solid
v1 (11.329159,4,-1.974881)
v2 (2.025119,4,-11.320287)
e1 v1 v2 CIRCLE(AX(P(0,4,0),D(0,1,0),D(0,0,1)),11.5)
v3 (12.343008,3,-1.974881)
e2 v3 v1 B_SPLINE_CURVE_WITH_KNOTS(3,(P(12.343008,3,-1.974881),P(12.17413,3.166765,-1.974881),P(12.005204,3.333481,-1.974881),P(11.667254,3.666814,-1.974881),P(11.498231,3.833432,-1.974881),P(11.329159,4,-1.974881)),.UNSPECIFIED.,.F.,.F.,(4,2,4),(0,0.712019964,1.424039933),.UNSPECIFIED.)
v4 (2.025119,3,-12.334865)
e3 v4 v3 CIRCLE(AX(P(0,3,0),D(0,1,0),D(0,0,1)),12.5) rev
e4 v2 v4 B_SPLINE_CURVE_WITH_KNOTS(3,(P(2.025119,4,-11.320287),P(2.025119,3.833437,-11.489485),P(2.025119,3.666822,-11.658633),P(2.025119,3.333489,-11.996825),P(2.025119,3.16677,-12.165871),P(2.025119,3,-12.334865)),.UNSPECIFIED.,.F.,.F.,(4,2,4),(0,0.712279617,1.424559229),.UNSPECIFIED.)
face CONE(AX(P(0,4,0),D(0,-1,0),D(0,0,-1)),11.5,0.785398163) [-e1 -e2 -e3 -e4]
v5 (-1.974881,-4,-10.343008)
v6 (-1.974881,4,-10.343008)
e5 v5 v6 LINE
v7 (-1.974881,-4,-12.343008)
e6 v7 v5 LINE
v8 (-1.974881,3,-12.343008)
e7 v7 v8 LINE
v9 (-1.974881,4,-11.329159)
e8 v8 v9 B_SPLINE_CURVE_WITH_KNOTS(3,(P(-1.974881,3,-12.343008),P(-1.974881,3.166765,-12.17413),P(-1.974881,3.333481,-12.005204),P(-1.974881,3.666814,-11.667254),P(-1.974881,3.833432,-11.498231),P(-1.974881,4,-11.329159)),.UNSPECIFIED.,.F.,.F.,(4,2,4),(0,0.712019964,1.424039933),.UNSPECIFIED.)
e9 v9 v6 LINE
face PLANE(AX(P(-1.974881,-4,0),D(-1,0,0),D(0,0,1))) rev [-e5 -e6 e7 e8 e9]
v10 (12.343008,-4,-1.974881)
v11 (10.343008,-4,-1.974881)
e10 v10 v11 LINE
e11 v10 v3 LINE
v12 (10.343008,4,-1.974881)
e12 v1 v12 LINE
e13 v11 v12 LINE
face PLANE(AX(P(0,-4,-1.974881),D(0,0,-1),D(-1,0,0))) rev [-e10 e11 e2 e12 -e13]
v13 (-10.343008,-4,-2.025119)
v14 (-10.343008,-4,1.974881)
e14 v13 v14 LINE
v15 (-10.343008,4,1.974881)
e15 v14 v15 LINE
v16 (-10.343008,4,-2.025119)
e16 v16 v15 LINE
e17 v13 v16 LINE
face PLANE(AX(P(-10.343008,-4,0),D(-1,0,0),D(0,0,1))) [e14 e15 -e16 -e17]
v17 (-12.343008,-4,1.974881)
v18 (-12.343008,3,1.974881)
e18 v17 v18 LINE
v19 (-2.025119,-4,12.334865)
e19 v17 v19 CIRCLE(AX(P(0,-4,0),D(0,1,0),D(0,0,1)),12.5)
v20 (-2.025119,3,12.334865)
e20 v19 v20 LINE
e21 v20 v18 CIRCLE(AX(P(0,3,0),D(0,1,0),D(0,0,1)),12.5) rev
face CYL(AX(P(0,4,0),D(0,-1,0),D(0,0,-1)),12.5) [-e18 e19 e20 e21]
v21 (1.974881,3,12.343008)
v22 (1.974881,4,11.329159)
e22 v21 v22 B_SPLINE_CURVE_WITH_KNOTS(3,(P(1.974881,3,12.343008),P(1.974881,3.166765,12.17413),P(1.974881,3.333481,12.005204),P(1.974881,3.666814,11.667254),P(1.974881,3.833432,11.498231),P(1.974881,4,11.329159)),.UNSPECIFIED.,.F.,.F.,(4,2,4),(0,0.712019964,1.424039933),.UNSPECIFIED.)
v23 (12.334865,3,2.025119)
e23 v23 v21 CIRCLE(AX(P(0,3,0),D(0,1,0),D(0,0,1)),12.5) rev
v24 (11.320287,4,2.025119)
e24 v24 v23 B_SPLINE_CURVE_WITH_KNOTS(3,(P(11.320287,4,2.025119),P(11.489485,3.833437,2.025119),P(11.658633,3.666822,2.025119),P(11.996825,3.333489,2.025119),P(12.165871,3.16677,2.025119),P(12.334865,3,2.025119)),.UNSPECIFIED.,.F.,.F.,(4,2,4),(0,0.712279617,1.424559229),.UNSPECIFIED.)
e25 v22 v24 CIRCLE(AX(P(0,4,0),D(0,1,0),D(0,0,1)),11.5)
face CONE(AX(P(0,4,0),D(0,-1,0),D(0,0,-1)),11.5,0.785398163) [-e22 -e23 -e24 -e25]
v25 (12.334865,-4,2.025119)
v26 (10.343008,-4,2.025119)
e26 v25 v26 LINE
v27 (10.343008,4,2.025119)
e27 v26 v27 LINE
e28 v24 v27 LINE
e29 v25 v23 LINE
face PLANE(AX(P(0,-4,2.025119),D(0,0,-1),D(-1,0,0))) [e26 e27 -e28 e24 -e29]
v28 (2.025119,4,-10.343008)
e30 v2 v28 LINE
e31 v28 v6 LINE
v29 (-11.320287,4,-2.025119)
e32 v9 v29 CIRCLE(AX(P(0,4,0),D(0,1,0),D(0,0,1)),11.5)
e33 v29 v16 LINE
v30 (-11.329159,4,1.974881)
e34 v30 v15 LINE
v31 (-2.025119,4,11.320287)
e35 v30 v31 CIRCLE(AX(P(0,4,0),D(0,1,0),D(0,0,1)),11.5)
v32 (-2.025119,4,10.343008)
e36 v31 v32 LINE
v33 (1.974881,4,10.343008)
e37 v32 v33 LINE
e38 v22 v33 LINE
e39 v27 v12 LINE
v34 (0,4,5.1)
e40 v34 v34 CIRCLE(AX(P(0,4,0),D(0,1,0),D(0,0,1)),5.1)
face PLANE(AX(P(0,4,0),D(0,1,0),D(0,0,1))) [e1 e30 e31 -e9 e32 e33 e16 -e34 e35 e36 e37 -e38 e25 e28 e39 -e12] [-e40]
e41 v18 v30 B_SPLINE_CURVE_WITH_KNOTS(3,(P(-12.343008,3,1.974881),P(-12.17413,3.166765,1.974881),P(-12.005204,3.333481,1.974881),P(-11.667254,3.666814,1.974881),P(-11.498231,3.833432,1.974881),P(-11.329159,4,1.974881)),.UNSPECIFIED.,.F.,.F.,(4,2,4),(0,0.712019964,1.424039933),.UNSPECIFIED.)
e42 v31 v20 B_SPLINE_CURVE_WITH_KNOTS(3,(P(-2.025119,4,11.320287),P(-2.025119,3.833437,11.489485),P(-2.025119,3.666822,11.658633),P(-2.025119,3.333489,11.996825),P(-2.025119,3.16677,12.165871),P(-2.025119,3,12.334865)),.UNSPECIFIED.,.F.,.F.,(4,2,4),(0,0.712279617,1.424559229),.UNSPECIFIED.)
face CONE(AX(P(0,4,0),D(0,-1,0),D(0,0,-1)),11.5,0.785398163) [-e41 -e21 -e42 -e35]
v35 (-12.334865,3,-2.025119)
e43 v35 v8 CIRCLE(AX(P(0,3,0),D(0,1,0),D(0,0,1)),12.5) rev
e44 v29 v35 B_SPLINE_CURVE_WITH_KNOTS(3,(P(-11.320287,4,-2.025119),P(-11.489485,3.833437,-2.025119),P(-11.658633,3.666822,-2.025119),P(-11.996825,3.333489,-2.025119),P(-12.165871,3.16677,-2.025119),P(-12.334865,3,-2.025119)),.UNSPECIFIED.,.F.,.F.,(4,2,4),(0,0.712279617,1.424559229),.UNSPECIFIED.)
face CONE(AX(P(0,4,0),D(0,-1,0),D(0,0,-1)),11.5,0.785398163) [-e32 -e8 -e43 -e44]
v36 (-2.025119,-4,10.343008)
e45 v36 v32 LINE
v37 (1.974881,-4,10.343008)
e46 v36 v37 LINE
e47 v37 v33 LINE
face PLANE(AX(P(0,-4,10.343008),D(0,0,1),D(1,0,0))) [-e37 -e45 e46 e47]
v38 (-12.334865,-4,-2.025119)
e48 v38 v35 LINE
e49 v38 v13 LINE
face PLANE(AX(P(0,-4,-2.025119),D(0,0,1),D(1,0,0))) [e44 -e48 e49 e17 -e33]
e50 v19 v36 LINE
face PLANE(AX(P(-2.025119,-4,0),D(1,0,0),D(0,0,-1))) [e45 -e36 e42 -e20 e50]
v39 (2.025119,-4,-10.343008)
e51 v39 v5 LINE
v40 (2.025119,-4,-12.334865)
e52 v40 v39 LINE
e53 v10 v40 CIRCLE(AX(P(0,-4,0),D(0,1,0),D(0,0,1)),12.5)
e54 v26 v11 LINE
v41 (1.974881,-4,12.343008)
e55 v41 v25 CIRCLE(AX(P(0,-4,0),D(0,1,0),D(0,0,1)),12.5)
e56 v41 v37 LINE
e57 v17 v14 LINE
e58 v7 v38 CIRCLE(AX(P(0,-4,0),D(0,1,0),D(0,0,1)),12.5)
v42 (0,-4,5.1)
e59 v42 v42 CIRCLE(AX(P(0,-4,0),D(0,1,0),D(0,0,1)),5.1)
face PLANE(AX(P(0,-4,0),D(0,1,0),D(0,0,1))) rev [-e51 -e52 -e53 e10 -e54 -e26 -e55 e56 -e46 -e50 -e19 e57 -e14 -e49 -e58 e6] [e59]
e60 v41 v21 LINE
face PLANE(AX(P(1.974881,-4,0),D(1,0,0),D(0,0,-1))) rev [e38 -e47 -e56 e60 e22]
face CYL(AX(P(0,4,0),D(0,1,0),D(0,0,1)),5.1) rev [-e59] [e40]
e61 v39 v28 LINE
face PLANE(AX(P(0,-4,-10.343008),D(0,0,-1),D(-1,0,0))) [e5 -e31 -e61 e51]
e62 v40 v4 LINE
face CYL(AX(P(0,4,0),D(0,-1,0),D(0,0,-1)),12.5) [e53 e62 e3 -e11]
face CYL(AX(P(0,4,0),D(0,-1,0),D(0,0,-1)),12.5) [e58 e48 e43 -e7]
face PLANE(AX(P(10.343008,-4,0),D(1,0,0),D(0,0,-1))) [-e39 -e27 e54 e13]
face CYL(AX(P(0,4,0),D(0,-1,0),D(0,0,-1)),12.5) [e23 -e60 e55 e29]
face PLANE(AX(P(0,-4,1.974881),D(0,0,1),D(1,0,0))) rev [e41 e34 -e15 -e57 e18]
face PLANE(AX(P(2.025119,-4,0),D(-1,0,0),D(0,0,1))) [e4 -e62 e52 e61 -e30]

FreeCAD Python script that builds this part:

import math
import FreeCAD as App
import Part
import Sketcher
Q = App.Units.Quantity


def edges_at(feature, points):
    """Names of the edges that pass closest to the given points."""
    edges = feature.Shape.Edges
    near = lambda p: min(range(len(edges)), key=lambda i: edges[i].distToShape(Part.Vertex(*p))[0])
    return sorted({f"Edge{near(p) + 1}" for p in points})

doc = App.newDocument("Part")
body = doc.addObject("PartDesign::Body", "Body")

sketch1 = body.newObject("Sketcher::SketchObject", "Sketch")
sketch1.AttachmentSupport = (doc.getObject("XZ_Plane"), [""])
sketch1.MapMode = "FlatFace"
sketch1.addGeometry(Part.Circle(App.Vector(0, 0, 0), App.Vector(0, 0, 1), 12), False)
sketch1.addConstraint([
    Sketcher.Constraint("Coincident", 0, 3, -1, 1),
    Sketcher.Constraint("Diameter", 0, Q("25 mm")),
])
pad1 = body.newObject("PartDesign::Pad", "Pad")
pad1.Profile = sketch1
pad1.Length = 8
pad1.Midplane = True

sketch2 = body.newObject("Sketcher::SketchObject", "Sketch001")
sketch2.AttachmentSupport = (doc.getObject("XZ_Plane"), [""])
sketch2.MapMode = "FlatFace"
sketch2.addGeometry([
    Part.ArcOfCircle(Part.Circle(App.Vector(0, 0, 0), App.Vector(0, 0, 1), 12.5), math.radians(-9.09), math.radians(9.32)),
    Part.LineSegment(App.Vector(12.3, -2, 0), App.Vector(10.3, -2, 0)),
    Part.LineSegment(App.Vector(10.3, -2, 0), App.Vector(10.3, 2, 0)),
    Part.LineSegment(App.Vector(10.3, 2, 0), App.Vector(12.3, 2, 0)),
    Part.ArcOfCircle(Part.Circle(App.Vector(0, 0, 0), App.Vector(0, 0, 1), 12.5), math.radians(80.91), math.radians(99.32)),
    Part.LineSegment(App.Vector(2, 12.3, 0), App.Vector(2, 10.3, 0)),
    Part.LineSegment(App.Vector(2, 10.3, 0), App.Vector(-2, 10.3, 0)),
    Part.LineSegment(App.Vector(-2, 10.3, 0), App.Vector(-2, 12.3, 0)),
    Part.LineSegment(App.Vector(2, -10.3, 0), App.Vector(2, -12.3, 0)),
    Part.ArcOfCircle(Part.Circle(App.Vector(0, 0, 0), App.Vector(0, 0, 1), 12.5), math.radians(-99.09), math.radians(-80.68)),
    Part.LineSegment(App.Vector(-2, -12.3, 0), App.Vector(-2, -10.3, 0)),
    Part.LineSegment(App.Vector(-2, -10.3, 0), App.Vector(2, -10.3, 0)),
    Part.ArcOfCircle(Part.Circle(App.Vector(0, 0, 0), App.Vector(0, 0, 1), 12.5), math.radians(170.91), math.radians(189.32)),
    Part.LineSegment(App.Vector(-12.3, 2, 0), App.Vector(-10.3, 2, 0)),
    Part.LineSegment(App.Vector(-10.3, 2, 0), App.Vector(-10.3, -2, 0)),
    Part.LineSegment(App.Vector(-10.3, -2, 0), App.Vector(-12.3, -2, 0)),
], False)
sketch2.addConstraint([
    Sketcher.Constraint("Coincident", 0, 1, 1, 1),
    Sketcher.Constraint("Coincident", 1, 2, 2, 1),
    Sketcher.Constraint("Coincident", 2, 2, 3, 1),
    Sketcher.Constraint("Coincident", 3, 2, 0, 2),
    Sketcher.Constraint("Coincident", 4, 1, 5, 1),
    Sketcher.Constraint("Coincident", 5, 2, 6, 1),
    Sketcher.Constraint("Coincident", 6, 2, 7, 1),
    Sketcher.Constraint("Coincident", 7, 2, 4, 2),
    Sketcher.Constraint("Coincident", 8, 2, 9, 2),
    Sketcher.Constraint("Coincident", 9, 1, 10, 1),
    Sketcher.Constraint("Coincident", 10, 2, 11, 1),
    Sketcher.Constraint("Coincident", 11, 2, 8, 1),
    Sketcher.Constraint("Coincident", 12, 1, 13, 1),
    Sketcher.Constraint("Coincident", 13, 2, 14, 1),
    Sketcher.Constraint("Coincident", 14, 2, 15, 1),
    Sketcher.Constraint("Coincident", 15, 2, 12, 2),
    Sketcher.Constraint("Horizontal", 1),
    Sketcher.Constraint("Vertical", 2),
    Sketcher.Constraint("Horizontal", 3),
    Sketcher.Constraint("Vertical", 5),
    Sketcher.Constraint("Horizontal", 6),
    Sketcher.Constraint("Vertical", 7),
    Sketcher.Constraint("Vertical", 8),
    Sketcher.Constraint("Vertical", 10),
    Sketcher.Constraint("Horizontal", 11),
    Sketcher.Constraint("Horizontal", 13),
    Sketcher.Constraint("Vertical", 14),
    Sketcher.Constraint("Horizontal", 15),
    Sketcher.Constraint("Coincident", 0, 3, -1, 1),
    Sketcher.Constraint("Coincident", 4, 3, -1, 1),
    Sketcher.Constraint("Coincident", 9, 3, -1, 1),
    Sketcher.Constraint("Coincident", 12, 3, -1, 1),
    Sketcher.Constraint("Equal", 0, 4),
    Sketcher.Constraint("Equal", 4, 9),
    Sketcher.Constraint("Equal", 9, 12),
    Sketcher.Constraint("Symmetric", 5, 2, 10, 2, -1, 1),
    Sketcher.Constraint("Symmetric", 1, 2, 13, 2, -1, 1),
    Sketcher.Constraint("Equal", 6, 11),
    Sketcher.Constraint("Equal", 3, 15),
    Sketcher.Constraint("Equal", 11, 2),
    Sketcher.Constraint("Equal", 13, 5),
    Sketcher.Constraint("Equal", 15, 7),
    Sketcher.Constraint("Radius", 0, Q("12.5 mm")),
    Sketcher.Constraint("DistanceX", 1, 2, 1, 1, Q("2 mm")),
    Sketcher.Constraint("DistanceX", 6, 2, 6, 1, Q("4 mm")),
    Sketcher.Constraint("DistanceX", 3, 1, 3, 2, Q("1.991857 mm")),
])
pocket1 = body.newObject("PartDesign::Pocket", "Pocket")
pocket1.Profile = sketch2
pocket1.Type = "ThroughAll"
pocket1.Midplane = True
doc.recompute()

chamfer = body.newObject("PartDesign::Chamfer", "Chamfer")
chamfer.Base = (pocket1, edges_at(pocket1, [
    (8.857, 4, -8.821),
    (-8.821, 4, -8.857),
    (-8.857, 4, 8.821),
    (8.821, 4, 8.857),
]))
chamfer.Size = 1

sketch3 = body.newObject("Sketcher::SketchObject", "Sketch002")
sketch3.AttachmentSupport = (doc.getObject("XZ_Plane"), [""])
sketch3.MapMode = "FlatFace"
sketch3.AttachmentOffset = App.Placement(App.Vector(0, 0, -4), App.Rotation())
sketch3.addGeometry(Part.Circle(App.Vector(0, 0, 0), App.Vector(0, 0, 1), 5), False)
sketch3.addConstraint([
    Sketcher.Constraint("Coincident", 0, 3, -1, 1),
    Sketcher.Constraint("Diameter", 0, Q("10.2 mm")),
])
doc.recompute()
hole = body.newObject("PartDesign::Hole", "Hole")
hole.Profile = sketch3
hole.ThreadType = "None"
hole.Diameter = 10.2
hole.DepthType = "Dimension"
hole.Depth = 8
hole.DrillPoint = "Flat"
hole.Reversed = True

doc.recompute()
